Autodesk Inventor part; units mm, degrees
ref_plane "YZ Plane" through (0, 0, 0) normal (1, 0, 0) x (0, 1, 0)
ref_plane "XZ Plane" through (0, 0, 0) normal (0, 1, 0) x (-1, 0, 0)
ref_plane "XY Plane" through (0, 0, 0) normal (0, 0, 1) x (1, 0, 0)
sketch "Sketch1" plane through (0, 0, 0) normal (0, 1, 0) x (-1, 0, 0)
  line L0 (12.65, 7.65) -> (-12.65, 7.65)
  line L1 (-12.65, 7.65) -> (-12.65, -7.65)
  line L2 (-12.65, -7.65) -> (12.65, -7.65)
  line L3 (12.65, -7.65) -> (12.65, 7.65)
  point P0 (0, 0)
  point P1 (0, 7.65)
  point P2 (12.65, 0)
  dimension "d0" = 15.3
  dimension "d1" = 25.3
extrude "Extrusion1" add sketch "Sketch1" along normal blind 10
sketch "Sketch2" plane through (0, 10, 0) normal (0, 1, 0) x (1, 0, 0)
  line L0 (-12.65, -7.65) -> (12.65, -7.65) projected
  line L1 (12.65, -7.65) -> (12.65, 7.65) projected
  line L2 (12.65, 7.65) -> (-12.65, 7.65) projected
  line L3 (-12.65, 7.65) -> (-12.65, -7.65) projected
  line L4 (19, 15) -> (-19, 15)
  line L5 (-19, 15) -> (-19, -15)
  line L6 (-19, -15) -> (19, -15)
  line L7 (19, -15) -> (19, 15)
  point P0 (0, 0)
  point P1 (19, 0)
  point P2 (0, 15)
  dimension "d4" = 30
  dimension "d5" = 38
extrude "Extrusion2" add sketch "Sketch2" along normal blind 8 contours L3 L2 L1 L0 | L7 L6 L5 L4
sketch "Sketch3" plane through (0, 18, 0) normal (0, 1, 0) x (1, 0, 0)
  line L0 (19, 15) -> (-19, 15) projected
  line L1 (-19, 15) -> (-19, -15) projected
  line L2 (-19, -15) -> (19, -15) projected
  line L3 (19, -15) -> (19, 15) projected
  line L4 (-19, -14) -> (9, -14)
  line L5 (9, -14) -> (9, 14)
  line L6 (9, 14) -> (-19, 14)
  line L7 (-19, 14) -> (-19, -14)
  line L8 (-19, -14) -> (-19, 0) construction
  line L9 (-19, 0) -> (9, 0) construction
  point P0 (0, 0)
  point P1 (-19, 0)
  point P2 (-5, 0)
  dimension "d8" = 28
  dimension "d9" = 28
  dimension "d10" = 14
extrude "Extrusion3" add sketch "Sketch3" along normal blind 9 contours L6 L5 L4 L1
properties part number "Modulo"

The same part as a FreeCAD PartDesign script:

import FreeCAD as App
import Part
import Sketcher
from FreeCAD import Vector
Q = App.Units.Quantity

doc = App.newDocument("Part")
body = doc.addObject("PartDesign::Body", "Body")

# Sketch on XZ plane
sketch1 = body.newObject("Sketcher::SketchObject", "Sketch")
sketch1.AttachmentSupport = (doc.getObject("XZ_Plane"), [""])
sketch1.MapMode = "FlatFace"
sketch1.addGeometry([
    Part.LineSegment(Vector(-13, -8, 0), Vector(-13, 8, 0)),
    Part.LineSegment(Vector(-13, 8, 0), Vector(13, 8, 0)),
    Part.LineSegment(Vector(13, 8, 0), Vector(13, -8, 0)),
    Part.LineSegment(Vector(13, -8, 0), Vector(-13, -8, 0)),
], False)
sketch1.addConstraint([
    Sketcher.Constraint("Coincident", 0, 2, 1, 1),
    Sketcher.Constraint("Coincident", 1, 2, 2, 1),
    Sketcher.Constraint("Coincident", 2, 2, 3, 1),
    Sketcher.Constraint("Coincident", 3, 2, 0, 1),
    Sketcher.Constraint("Vertical", 0),
    Sketcher.Constraint("Horizontal", 1),
    Sketcher.Constraint("Vertical", 2),
    Sketcher.Constraint("Horizontal", 3),
    Sketcher.Constraint("Symmetric", 0, 2, 2, 2, -1, 1),
    Sketcher.Constraint("DistanceX", 1, 1, 1, 2, Q("25.3 mm")),
    Sketcher.Constraint("DistanceY", 0, 1, 0, 2, Q("15.3 mm")),
])
pad1 = body.newObject("PartDesign::Pad", "Pad")
pad1.Profile = sketch1
pad1.Length = 10
pad1.Reversed = True

# Sketch on XZ plane
sketch2 = body.newObject("Sketcher::SketchObject", "Sketch001")
sketch2.AttachmentSupport = (doc.getObject("XZ_Plane"), [""])
sketch2.MapMode = "FlatFace"
sketch2.AttachmentOffset = App.Placement(Vector(0, 0, -10), App.Rotation())
sketch2.addGeometry([
    Part.LineSegment(Vector(19, 15, 0), Vector(19, -15, 0)),
    Part.LineSegment(Vector(19, -15, 0), Vector(-19, -15, 0)),
    Part.LineSegment(Vector(-19, -15, 0), Vector(-19, 15, 0)),
    Part.LineSegment(Vector(-19, 15, 0), Vector(19, 15, 0)),
], False)
sketch2.addConstraint([
    Sketcher.Constraint("Coincident", 0, 2, 1, 1),
    Sketcher.Constraint("Coincident", 1, 2, 2, 1),
    Sketcher.Constraint("Coincident", 2, 2, 3, 1),
    Sketcher.Constraint("Coincident", 3, 2, 0, 1),
    Sketcher.Constraint("Vertical", 0),
    Sketcher.Constraint("Horizontal", 1),
    Sketcher.Constraint("Vertical", 2),
    Sketcher.Constraint("Horizontal", 3),
    Sketcher.Constraint("Symmetric", 0, 2, 2, 2, -1, 1),
    Sketcher.Constraint("DistanceX", 1, 2, 1, 1, Q("38 mm")),
    Sketcher.Constraint("DistanceY", 0, 2, 0, 1, Q("30 mm")),
])
pad2 = body.newObject("PartDesign::Pad", "Pad001")
pad2.Profile = sketch2
pad2.Length = 8
pad2.Reversed = True

# Sketch on XZ plane
sketch3 = body.newObject("Sketcher::SketchObject", "Sketch002")
sketch3.AttachmentSupport = (doc.getObject("XZ_Plane"), [""])
sketch3.MapMode = "FlatFace"
sketch3.AttachmentOffset = App.Placement(Vector(0, 0, -18), App.Rotation())
sketch3.addGeometry([
    Part.LineSegment(Vector(9, -14, 0), Vector(-19, -14, 0)),
    Part.LineSegment(Vector(-19, -14, 0), Vector(-19, 14, 0)),
    Part.LineSegment(Vector(-19, 14, 0), Vector(9, 14, 0)),
    Part.LineSegment(Vector(9, 14, 0), Vector(9, -14, 0)),
], False)
sketch3.addConstraint([
    Sketcher.Constraint("Coincident", 0, 2, 1, 1),
    Sketcher.Constraint("Coincident", 1, 2, 2, 1),
    Sketcher.Constraint("Coincident", 2, 2, 3, 1),
    Sketcher.Constraint("Coincident", 3, 2, 0, 1),
    Sketcher.Constraint("Horizontal", 0),
    Sketcher.Constraint("Vertical", 1),
    Sketcher.Constraint("Horizontal", 2),
    Sketcher.Constraint("Vertical", 3),
    Sketcher.Constraint("Equal", 2, 1),
    Sketcher.Constraint("DistanceX", 0, 2, 0, 1, Q("28 mm")),
    Sketcher.Constraint("DistanceY", 0, 2, -1, 1, Q("14 mm")),
    Sketcher.Constraint("DistanceX", 0, 2, -1, 1, Q("19 mm")),
])
pad3 = body.newObject("PartDesign::Pad", "Pad002")
pad3.Profile = sketch3
pad3.Length = 9
pad3.Reversed = True

doc.recompute()
